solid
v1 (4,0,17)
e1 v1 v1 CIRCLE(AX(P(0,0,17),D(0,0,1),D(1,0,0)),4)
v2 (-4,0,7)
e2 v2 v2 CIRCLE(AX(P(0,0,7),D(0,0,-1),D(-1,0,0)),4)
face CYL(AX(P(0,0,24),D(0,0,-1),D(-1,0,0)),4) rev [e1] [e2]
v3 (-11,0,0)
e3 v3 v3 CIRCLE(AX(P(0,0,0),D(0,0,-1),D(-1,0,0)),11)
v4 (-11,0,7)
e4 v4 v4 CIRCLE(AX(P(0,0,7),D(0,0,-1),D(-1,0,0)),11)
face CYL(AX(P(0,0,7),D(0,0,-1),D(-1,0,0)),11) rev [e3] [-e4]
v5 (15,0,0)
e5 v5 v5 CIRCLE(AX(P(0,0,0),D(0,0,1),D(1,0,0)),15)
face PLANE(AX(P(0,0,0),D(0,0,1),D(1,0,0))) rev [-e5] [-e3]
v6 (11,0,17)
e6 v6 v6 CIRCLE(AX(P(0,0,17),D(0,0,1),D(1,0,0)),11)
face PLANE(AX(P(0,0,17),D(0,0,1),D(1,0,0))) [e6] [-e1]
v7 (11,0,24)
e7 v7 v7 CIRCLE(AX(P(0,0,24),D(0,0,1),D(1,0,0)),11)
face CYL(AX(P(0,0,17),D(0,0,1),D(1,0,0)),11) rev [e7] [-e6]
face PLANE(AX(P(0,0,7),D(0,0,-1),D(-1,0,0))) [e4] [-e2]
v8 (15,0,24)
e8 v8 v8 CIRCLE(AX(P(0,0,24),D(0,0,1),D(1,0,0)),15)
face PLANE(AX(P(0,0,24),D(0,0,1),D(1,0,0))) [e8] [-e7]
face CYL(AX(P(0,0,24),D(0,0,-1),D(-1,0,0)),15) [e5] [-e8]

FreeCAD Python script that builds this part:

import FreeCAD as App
import Part
import Sketcher

V = App.Vector
Q = App.Units.Quantity

doc = App.newDocument("Part")
body = doc.addObject("PartDesign::Body", "Body")

# Sketch on XY plane
sketch1 = doc.addObject("Sketcher::SketchObject", "Sketch")
body.addObject(sketch1)
sketch1.AttachmentSupport = (doc.XY_Plane, [""])
sketch1.MapMode = "FlatFace"
sketch1.addGeometry(Part.Circle(V(0, 0, 0), V(0, 0, 1), 15), False)
sketch1.addGeometry(Part.Circle(V(0, 0, 0), V(0, 0, 1), 4), False)
sketch1.addConstraint(Sketcher.Constraint("Coincident", 0, 3, -1, 1))
sketch1.addConstraint(Sketcher.Constraint("Coincident", 1, 3, -1, 1))
sketch1.addConstraint(Sketcher.Constraint("Diameter", 0, Q("30 mm")))
sketch1.addConstraint(Sketcher.Constraint("Diameter", 1, Q("8 mm")))
pad1 = doc.addObject("PartDesign::Pad", "Pad")
body.addObject(pad1)
pad1.Profile = sketch1
pad1.Length = 24

# Sketch on XY plane
sketch2 = doc.addObject("Sketcher::SketchObject", "Sketch001")
body.addObject(sketch2)
sketch2.AttachmentSupport = (doc.XY_Plane, [""])
sketch2.MapMode = "FlatFace"
sketch2.AttachmentOffset = App.Placement(V(0, 0, 24), App.Rotation())
sketch2.addGeometry(Part.Circle(V(0, 0, 0), V(0, 0, 1), 11), False)
sketch2.addConstraint(Sketcher.Constraint("Coincident", 0, 3, -1, 1))
sketch2.addConstraint(Sketcher.Constraint("Diameter", 0, Q("22 mm")))
pocket1 = doc.addObject("PartDesign::Pocket", "Pocket")
body.addObject(pocket1)
pocket1.Profile = sketch2
pocket1.Length = 7

# Sketch on XY plane
sketch3 = doc.addObject("Sketcher::SketchObject", "Sketch002")
body.addObject(sketch3)
sketch3.AttachmentSupport = (doc.XY_Plane, [""])
sketch3.MapMode = "FlatFace"
sketch3.AttachmentOffset = App.Placement(V(0, 0, 7), App.Rotation())
sketch3.addGeometry(Part.Circle(V(0, 0, 0), V(0, 0, 1), 11), False)
sketch3.addConstraint(Sketcher.Constraint("Coincident", 0, 3, -1, 1))
sketch3.addConstraint(Sketcher.Constraint("Diameter", 0, Q("22 mm")))
pocket2 = doc.addObject("PartDesign::Pocket", "Pocket001")
body.addObject(pocket2)
pocket2.Profile = sketch3
pocket2.Length = 7

doc.recompute()
